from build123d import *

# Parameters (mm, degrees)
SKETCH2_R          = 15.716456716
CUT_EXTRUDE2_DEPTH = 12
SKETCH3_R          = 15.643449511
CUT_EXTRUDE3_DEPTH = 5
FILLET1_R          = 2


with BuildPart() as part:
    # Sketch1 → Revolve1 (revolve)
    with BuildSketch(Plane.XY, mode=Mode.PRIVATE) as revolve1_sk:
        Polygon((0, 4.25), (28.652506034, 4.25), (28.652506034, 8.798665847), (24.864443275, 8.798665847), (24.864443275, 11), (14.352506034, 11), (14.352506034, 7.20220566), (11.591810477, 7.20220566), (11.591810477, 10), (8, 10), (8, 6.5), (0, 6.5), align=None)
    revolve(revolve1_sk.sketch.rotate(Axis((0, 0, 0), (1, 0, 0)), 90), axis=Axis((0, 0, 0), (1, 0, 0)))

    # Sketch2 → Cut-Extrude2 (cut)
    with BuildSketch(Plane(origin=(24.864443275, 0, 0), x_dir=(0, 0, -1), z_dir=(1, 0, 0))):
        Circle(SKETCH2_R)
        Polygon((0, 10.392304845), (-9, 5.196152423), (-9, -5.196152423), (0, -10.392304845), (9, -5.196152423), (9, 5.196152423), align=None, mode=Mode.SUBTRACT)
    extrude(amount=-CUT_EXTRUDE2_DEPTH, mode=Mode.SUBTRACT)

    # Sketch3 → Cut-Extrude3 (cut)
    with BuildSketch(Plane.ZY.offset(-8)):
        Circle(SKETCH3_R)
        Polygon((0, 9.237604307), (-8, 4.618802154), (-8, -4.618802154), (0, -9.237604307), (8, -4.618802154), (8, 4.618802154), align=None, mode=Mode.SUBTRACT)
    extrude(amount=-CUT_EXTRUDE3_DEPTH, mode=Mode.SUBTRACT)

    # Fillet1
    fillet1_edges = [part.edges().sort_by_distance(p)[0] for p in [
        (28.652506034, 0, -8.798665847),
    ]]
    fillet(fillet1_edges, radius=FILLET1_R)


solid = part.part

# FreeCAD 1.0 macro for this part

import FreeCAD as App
import Part
import Sketcher

V = App.Vector
Q = App.Units.Quantity


def edges_at(feature, points):
    """Names of the edges that pass closest to the given points."""
    edges = feature.Shape.Edges
    near = lambda p: min(range(len(edges)), key=lambda i: edges[i].distToShape(Part.Vertex(*p))[0])
    return sorted({f"Edge{near(p) + 1}" for p in points})

doc = App.newDocument("Part")
body = doc.addObject("PartDesign::Body", "Body")

# Sketch on XY plane
sketch1 = body.newObject("Sketcher::SketchObject", "Sketch")
sketch1.AttachmentSupport = (doc.getObject("XY_Plane"), [""])
sketch1.MapMode = "FlatFace"
sketch1.addGeometry(Part.LineSegment(V(0, 4.2, 0), V(28.7, 4.2, 0)), False)
sketch1.addGeometry(Part.LineSegment(V(28.7, 4.2, 0), V(28.7, 8.8, 0)), False)
sketch1.addGeometry(Part.LineSegment(V(28.7, 8.8, 0), V(24.9, 8.8, 0)), False)
sketch1.addGeometry(Part.LineSegment(V(24.9, 8.8, 0), V(24.9, 11, 0)), False)
sketch1.addGeometry(Part.LineSegment(V(24.9, 11, 0), V(14.4, 11, 0)), False)
sketch1.addGeometry(Part.LineSegment(V(14.4, 11, 0), V(14.4, 7.2, 0)), False)
sketch1.addGeometry(Part.LineSegment(V(14.4, 7.2, 0), V(11.6, 7.2, 0)), False)
sketch1.addGeometry(Part.LineSegment(V(11.6, 7.2, 0), V(11.6, 10, 0)), False)
sketch1.addGeometry(Part.LineSegment(V(11.6, 10, 0), V(8, 10, 0)), False)
sketch1.addGeometry(Part.LineSegment(V(8, 10, 0), V(8, 6.5, 0)), False)
sketch1.addGeometry(Part.LineSegment(V(8, 6.5, 0), V(0, 6.5, 0)), False)
sketch1.addGeometry(Part.LineSegment(V(0, 6.5, 0), V(0, 4.2, 0)), False)
sketch1.addConstraint(Sketcher.Constraint("Coincident", 0, 2, 1, 1))
sketch1.addConstraint(Sketcher.Constraint("Coincident", 1, 2, 2, 1))
sketch1.addConstraint(Sketcher.Constraint("Coincident", 2, 2, 3, 1))
sketch1.addConstraint(Sketcher.Constraint("Coincident", 3, 2, 4, 1))
sketch1.addConstraint(Sketcher.Constraint("Coincident", 4, 2, 5, 1))
sketch1.addConstraint(Sketcher.Constraint("Coincident", 5, 2, 6, 1))
sketch1.addConstraint(Sketcher.Constraint("Coincident", 6, 2, 7, 1))
sketch1.addConstraint(Sketcher.Constraint("Coincident", 7, 2, 8, 1))
sketch1.addConstraint(Sketcher.Constraint("Coincident", 8, 2, 9, 1))
sketch1.addConstraint(Sketcher.Constraint("Coincident", 9, 2, 10, 1))
sketch1.addConstraint(Sketcher.Constraint("Coincident", 10, 2, 11, 1))
sketch1.addConstraint(Sketcher.Constraint("Coincident", 11, 2, 0, 1))
sketch1.addConstraint(Sketcher.Constraint("Horizontal", 0))
sketch1.addConstraint(Sketcher.Constraint("Vertical", 1))
sketch1.addConstraint(Sketcher.Constraint("Horizontal", 2))
sketch1.addConstraint(Sketcher.Constraint("Vertical", 3))
sketch1.addConstraint(Sketcher.Constraint("Horizontal", 4))
sketch1.addConstraint(Sketcher.Constraint("Vertical", 5))
sketch1.addConstraint(Sketcher.Constraint("Horizontal", 6))
sketch1.addConstraint(Sketcher.Constraint("Vertical", 7))
sketch1.addConstraint(Sketcher.Constraint("Horizontal", 8))
sketch1.addConstraint(Sketcher.Constraint("Vertical", 9))
sketch1.addConstraint(Sketcher.Constraint("Horizontal", 10))
sketch1.addConstraint(Sketcher.Constraint("Vertical", 11))
sketch1.addConstraint(Sketcher.Constraint("PointOnObject", 10, 2, -2))
sketch1.addConstraint(Sketcher.Constraint("DistanceX", 10, 2, 10, 1, Q("8 mm")))
sketch1.addConstraint(Sketcher.Constraint("DistanceY", 9, 2, 9, 1, Q("3.5 mm")))
sketch1.addConstraint(Sketcher.Constraint("DistanceY", -1, 1, 3, 2, Q("11 mm")))
sketch1.addConstraint(Sketcher.Constraint("DistanceY", -1, 1, 7, 2, Q("10 mm")))
sketch1.addConstraint(Sketcher.Constraint("DistanceY", 11, 2, 11, 1, Q("2.25 mm")))
sketch1.addConstraint(Sketcher.Constraint("DistanceX", 4, 2, 1, 2, Q("14.3 mm")))
sketch1.addConstraint(Sketcher.Constraint("DistanceX", 8, 2, 8, 1, Q("3.59181 mm")))
sketch1.addConstraint(Sketcher.Constraint("DistanceX", 0, 1, 0, 2, Q("28.652506 mm")))
sketch1.addConstraint(Sketcher.Constraint("DistanceX", 2, 2, 2, 1, Q("3.788063 mm")))
sketch1.addConstraint(Sketcher.Constraint("DistanceY", 1, 1, 1, 2, Q("4.548666 mm")))
sketch1.addConstraint(Sketcher.Constraint("DistanceY", 5, 2, 5, 1, Q("3.797794 mm")))
revolution = body.newObject("PartDesign::Revolution", "Revolution")
revolution.Profile = sketch1
revolution.ReferenceAxis = (sketch1, ["H_Axis"])
revolution.Angle = 360

# Sketch on YZ plane
sketch2 = body.newObject("Sketcher::SketchObject", "Sketch001")
sketch2.AttachmentSupport = (doc.getObject("YZ_Plane"), [""])
sketch2.MapMode = "FlatFace"
sketch2.AttachmentOffset = App.Placement(V(0, 0, 24.864443), App.Rotation())
sketch2.addGeometry(Part.Circle(V(0, 0, 0), V(0, 0, 1), 16), False)
sketch2.addGeometry(Part.LineSegment(V(5, 9, 0), V(10, 0, 0)), False)
sketch2.addGeometry(Part.LineSegment(V(10, 0, 0), V(5, -9, 0)), False)
sketch2.addGeometry(Part.LineSegment(V(5, -9, 0), V(-5, -9, 0)), False)
sketch2.addGeometry(Part.LineSegment(V(-5, -9, 0), V(-10, 0, 0)), False)
sketch2.addGeometry(Part.LineSegment(V(-10, 0, 0), V(-5, 9, 0)), False)
sketch2.addGeometry(Part.LineSegment(V(-5, 9, 0), V(5, 9, 0)), False)
sketch2.addConstraint(Sketcher.Constraint("Coincident", 1, 2, 2, 1))
sketch2.addConstraint(Sketcher.Constraint("Coincident", 2, 2, 3, 1))
sketch2.addConstraint(Sketcher.Constraint("Coincident", 3, 2, 4, 1))
sketch2.addConstraint(Sketcher.Constraint("Coincident", 4, 2, 5, 1))
sketch2.addConstraint(Sketcher.Constraint("Coincident", 5, 2, 6, 1))
sketch2.addConstraint(Sketcher.Constraint("Coincident", 6, 2, 1, 1))
sketch2.addConstraint(Sketcher.Constraint("Horizontal", 3))
sketch2.addConstraint(Sketcher.Constraint("Horizontal", 6))
sketch2.addConstraint(Sketcher.Constraint("Coincident", 0, 3, -1, 1))
sketch2.addConstraint(Sketcher.Constraint("Symmetric", 1, 2, 4, 2, -1, 1))
sketch2.addConstraint(Sketcher.Constraint("Symmetric", 2, 2, 5, 2, -1, 1))
sketch2.addConstraint(Sketcher.Constraint("PointOnObject", 1, 2, -1))
sketch2.addConstraint(Sketcher.Constraint("Parallel", 1, 4))
sketch2.addConstraint(Sketcher.Constraint("Vertical", 3, 2, 5, 2))
sketch2.addConstraint(Sketcher.Constraint("Angle", 1, Q("-60 deg")))
sketch2.addConstraint(Sketcher.Constraint("DistanceY", 2, 2, -1, 1, Q("9 mm")))
sketch2.addConstraint(Sketcher.Constraint("Diameter", 0, Q("31.432913 mm")))
sketch2.addConstraint(Sketcher.Constraint("DistanceX", 3, 2, 3, 1, Q("10.392305 mm")))
pocket1 = body.newObject("PartDesign::Pocket", "Pocket")
pocket1.Profile = sketch2
pocket1.Length = 12

# Sketch on YZ plane
sketch3 = body.newObject("Sketcher::SketchObject", "Sketch002")
sketch3.AttachmentSupport = (doc.getObject("YZ_Plane"), [""])
sketch3.MapMode = "FlatFace"
sketch3.AttachmentOffset = App.Placement(V(0, 0, 8), App.Rotation())
sketch3.addGeometry(Part.Circle(V(0, 0, 0), V(0, 0, 1), 16), False)
sketch3.addGeometry(Part.LineSegment(V(5, -8, 0), V(9, 0, 0)), False)
sketch3.addGeometry(Part.LineSegment(V(9, 0, 0), V(5, 8, 0)), False)
sketch3.addGeometry(Part.LineSegment(V(5, 8, 0), V(-5, 8, 0)), False)
sketch3.addGeometry(Part.LineSegment(V(-5, 8, 0), V(-9, 0, 0)), False)
sketch3.addGeometry(Part.LineSegment(V(-9, 0, 0), V(-5, -8, 0)), False)
sketch3.addGeometry(Part.LineSegment(V(-5, -8, 0), V(5, -8, 0)), False)
sketch3.addConstraint(Sketcher.Constraint("Coincident", 1, 2, 2, 1))
sketch3.addConstraint(Sketcher.Constraint("Coincident", 2, 2, 3, 1))
sketch3.addConstraint(Sketcher.Constraint("Coincident", 3, 2, 4, 1))
sketch3.addConstraint(Sketcher.Constraint("Coincident", 4, 2, 5, 1))
sketch3.addConstraint(Sketcher.Constraint("Coincident", 5, 2, 6, 1))
sketch3.addConstraint(Sketcher.Constraint("Coincident", 6, 2, 1, 1))
sketch3.addConstraint(Sketcher.Constraint("Horizontal", 3))
sketch3.addConstraint(Sketcher.Constraint("Horizontal", 6))
sketch3.addConstraint(Sketcher.Constraint("Coincident", 0, 3, -1, 1))
sketch3.addConstraint(Sketcher.Constraint("Symmetric", 1, 2, 4, 2, -1, 1))
sketch3.addConstraint(Sketcher.Constraint("Symmetric", 2, 2, 5, 2, -1, 1))
sketch3.addConstraint(Sketcher.Constraint("PointOnObject", 1, 2, -1))
sketch3.addConstraint(Sketcher.Constraint("Parallel", 1, 4))
sketch3.addConstraint(Sketcher.Constraint("Vertical", 3, 2, 5, 2))
sketch3.addConstraint(Sketcher.Constraint("Angle", 1, Q("60 deg")))
sketch3.addConstraint(Sketcher.Constraint("DistanceY", -1, 1, 2, 2, Q("8 mm")))
sketch3.addConstraint(Sketcher.Constraint("Diameter", 0, Q("31.286899 mm")))
sketch3.addConstraint(Sketcher.Constraint("DistanceX", 3, 2, 3, 1, Q("9.237604 mm")))
pocket2 = body.newObject("PartDesign::Pocket", "Pocket001")
pocket2.Profile = sketch3
pocket2.Length = 5
pocket2.Reversed = True
doc.recompute()

fillet = body.newObject("PartDesign::Fillet", "Fillet")
fillet.Base = (pocket2, edges_at(pocket2, [(28.653, 0, -8.799)]))
fillet.Radius = 2

doc.recompute()
